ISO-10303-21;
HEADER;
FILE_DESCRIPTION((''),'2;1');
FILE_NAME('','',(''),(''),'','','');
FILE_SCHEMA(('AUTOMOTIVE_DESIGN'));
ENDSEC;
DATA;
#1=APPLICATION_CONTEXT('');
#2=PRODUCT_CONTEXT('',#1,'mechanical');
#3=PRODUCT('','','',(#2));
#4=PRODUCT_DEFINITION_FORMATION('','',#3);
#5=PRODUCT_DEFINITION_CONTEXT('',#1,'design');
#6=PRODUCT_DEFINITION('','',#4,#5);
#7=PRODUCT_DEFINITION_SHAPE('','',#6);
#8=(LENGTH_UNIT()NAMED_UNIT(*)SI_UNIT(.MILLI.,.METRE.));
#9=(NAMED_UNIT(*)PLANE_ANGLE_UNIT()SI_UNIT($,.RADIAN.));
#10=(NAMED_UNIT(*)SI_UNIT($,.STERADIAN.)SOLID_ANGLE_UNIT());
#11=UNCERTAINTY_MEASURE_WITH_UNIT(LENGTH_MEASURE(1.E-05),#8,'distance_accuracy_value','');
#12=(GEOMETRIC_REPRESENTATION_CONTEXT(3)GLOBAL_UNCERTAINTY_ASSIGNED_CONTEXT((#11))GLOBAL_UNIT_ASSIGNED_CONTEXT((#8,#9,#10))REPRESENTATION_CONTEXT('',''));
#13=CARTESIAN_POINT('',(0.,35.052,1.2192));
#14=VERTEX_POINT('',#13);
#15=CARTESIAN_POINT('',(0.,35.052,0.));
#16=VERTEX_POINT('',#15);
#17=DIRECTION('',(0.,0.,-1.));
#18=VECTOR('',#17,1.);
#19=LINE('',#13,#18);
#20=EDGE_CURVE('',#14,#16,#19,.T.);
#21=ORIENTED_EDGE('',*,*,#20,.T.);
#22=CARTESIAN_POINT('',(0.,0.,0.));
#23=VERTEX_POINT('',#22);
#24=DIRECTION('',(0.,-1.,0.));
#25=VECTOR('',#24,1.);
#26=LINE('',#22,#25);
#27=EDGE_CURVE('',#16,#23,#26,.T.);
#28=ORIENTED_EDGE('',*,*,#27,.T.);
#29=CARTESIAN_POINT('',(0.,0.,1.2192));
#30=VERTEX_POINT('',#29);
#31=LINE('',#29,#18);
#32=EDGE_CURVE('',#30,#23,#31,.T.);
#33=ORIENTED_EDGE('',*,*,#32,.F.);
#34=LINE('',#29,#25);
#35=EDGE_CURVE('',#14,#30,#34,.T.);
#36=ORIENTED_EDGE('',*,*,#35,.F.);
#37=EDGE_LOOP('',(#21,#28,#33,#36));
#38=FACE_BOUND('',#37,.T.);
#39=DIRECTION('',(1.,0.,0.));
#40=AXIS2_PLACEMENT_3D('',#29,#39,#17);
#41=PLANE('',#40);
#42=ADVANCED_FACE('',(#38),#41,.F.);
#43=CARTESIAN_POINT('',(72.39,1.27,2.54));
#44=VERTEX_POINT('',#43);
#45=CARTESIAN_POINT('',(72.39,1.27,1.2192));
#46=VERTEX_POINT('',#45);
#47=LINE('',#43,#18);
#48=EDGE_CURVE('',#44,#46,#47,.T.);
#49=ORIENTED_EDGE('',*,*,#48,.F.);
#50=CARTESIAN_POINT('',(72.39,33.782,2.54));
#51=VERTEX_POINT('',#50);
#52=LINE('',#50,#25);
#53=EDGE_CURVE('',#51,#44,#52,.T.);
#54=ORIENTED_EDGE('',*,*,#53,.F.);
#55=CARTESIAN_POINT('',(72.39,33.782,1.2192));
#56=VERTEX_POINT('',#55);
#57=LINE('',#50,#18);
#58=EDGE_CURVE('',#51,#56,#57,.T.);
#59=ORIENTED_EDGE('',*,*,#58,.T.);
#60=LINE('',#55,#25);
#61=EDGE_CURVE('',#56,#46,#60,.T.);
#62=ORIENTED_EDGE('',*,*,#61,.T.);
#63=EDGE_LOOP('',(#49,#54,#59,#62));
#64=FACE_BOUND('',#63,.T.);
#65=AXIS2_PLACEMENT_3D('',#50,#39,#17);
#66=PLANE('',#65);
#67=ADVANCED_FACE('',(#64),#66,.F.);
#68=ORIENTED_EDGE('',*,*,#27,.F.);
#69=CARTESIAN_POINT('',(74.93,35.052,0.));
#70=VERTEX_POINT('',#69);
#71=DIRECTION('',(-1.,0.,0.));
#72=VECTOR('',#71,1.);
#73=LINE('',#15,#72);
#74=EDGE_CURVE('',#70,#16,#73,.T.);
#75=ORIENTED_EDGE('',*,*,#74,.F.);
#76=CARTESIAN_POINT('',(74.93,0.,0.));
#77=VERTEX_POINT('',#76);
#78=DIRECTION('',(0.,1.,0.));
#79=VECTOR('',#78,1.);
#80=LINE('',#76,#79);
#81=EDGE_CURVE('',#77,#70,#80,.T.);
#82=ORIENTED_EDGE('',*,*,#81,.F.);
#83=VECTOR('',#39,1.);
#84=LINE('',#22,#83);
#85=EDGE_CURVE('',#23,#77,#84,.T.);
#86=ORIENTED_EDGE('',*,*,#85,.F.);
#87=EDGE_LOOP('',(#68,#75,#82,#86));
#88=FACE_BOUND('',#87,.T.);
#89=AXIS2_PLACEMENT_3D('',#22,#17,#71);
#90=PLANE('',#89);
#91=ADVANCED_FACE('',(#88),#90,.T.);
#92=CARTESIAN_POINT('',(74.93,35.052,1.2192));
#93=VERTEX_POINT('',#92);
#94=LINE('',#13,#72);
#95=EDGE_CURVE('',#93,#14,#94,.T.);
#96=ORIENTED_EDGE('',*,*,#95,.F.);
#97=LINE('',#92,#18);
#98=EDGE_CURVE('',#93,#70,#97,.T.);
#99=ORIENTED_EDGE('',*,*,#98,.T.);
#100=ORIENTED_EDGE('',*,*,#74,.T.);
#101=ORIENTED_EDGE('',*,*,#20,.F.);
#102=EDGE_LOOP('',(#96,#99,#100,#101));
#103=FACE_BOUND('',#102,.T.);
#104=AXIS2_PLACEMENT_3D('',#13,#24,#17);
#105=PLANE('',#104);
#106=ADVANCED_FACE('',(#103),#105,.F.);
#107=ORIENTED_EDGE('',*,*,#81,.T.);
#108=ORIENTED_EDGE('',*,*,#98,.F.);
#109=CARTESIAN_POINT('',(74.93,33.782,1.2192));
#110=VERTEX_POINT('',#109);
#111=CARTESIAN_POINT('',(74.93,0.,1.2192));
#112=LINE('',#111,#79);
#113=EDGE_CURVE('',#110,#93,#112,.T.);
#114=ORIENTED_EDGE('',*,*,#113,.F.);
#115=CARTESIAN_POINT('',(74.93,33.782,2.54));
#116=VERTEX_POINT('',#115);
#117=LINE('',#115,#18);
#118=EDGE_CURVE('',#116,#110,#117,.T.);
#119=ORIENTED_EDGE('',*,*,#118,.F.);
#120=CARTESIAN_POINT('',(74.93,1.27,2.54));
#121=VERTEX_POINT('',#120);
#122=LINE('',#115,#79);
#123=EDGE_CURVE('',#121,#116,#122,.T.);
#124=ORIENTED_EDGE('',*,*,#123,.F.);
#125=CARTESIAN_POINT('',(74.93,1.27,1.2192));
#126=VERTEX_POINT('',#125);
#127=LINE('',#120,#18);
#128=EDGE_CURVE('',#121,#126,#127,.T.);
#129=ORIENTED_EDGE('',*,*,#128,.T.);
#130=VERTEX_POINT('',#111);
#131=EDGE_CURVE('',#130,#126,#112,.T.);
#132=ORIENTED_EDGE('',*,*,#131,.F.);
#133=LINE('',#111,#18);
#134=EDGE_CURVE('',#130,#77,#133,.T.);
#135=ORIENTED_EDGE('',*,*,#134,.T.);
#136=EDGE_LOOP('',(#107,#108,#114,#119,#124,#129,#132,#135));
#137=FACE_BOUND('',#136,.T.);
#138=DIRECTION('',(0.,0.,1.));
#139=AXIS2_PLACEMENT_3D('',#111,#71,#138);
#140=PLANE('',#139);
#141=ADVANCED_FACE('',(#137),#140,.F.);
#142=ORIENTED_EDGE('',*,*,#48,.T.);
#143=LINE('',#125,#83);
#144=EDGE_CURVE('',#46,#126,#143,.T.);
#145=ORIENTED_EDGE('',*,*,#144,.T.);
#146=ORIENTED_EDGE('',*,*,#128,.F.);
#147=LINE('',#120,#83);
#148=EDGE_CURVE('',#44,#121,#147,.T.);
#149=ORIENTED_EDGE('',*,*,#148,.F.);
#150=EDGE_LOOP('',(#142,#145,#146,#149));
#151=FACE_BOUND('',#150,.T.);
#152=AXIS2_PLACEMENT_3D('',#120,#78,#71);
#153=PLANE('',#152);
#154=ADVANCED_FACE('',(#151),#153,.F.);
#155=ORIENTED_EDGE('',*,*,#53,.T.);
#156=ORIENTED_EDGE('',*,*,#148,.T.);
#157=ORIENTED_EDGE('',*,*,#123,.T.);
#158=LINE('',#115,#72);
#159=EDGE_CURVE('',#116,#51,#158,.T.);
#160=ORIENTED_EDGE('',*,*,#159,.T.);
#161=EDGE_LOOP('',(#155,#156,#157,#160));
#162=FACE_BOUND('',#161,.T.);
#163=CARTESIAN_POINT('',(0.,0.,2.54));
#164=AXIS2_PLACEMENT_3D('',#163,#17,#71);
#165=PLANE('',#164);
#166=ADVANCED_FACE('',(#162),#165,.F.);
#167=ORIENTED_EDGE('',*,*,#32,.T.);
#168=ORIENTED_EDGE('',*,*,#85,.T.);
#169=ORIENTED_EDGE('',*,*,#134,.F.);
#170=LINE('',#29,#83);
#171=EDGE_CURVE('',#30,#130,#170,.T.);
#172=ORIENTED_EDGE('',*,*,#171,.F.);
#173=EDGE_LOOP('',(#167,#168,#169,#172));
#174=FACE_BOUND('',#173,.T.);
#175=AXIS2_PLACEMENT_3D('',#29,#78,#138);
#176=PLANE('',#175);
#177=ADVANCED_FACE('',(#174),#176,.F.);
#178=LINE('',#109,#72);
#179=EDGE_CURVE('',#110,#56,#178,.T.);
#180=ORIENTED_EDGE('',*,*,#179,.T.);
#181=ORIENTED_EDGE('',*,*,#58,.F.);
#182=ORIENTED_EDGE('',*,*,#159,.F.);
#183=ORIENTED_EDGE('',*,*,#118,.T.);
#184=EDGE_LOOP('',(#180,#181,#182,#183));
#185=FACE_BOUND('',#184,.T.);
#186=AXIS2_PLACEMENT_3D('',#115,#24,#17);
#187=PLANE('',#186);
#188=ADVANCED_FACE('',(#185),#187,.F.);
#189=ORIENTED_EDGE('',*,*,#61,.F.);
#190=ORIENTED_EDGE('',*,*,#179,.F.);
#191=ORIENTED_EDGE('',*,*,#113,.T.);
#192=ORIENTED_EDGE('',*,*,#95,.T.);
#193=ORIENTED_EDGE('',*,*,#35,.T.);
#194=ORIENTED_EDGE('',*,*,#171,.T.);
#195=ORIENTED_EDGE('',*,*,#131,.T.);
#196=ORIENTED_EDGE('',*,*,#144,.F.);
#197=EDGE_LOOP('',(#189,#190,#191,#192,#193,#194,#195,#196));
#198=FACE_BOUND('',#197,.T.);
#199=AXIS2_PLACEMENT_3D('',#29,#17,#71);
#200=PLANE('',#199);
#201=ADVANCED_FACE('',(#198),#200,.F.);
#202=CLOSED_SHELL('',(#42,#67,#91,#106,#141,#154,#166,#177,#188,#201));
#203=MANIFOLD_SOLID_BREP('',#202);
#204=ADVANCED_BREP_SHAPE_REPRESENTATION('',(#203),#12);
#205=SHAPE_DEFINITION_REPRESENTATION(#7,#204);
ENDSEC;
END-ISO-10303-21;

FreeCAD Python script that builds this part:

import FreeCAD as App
import Part
import Sketcher
from FreeCAD import Vector
Q = App.Units.Quantity

doc = App.newDocument("Part")
body = doc.addObject("PartDesign::Body", "Body")

sketch1 = body.newObject("Sketcher::SketchObject", "Sketch")
sketch1.AttachmentSupport = (doc.getObject("XY_Plane"), [""])
sketch1.MapMode = "FlatFace"
sketch1.addGeometry([
    Part.LineSegment(Vector(0, 35.052, 0), Vector(0, 0, 0)),
    Part.LineSegment(Vector(0, 0, 0), Vector(74.93, 0, 0)),
    Part.LineSegment(Vector(74.93, 0, 0), Vector(74.93, 35.052, 0)),
    Part.LineSegment(Vector(74.93, 35.052, 0), Vector(0, 35.052, 0)),
], False)
sketch1.addConstraint([
    Sketcher.Constraint("Coincident", 0, 2, 1, 1),
    Sketcher.Constraint("Coincident", 1, 2, 2, 1),
    Sketcher.Constraint("Coincident", 2, 2, 3, 1),
    Sketcher.Constraint("Coincident", 3, 2, 0, 1),
    Sketcher.Constraint("Vertical", 0),
    Sketcher.Constraint("Horizontal", 1),
    Sketcher.Constraint("Vertical", 2),
    Sketcher.Constraint("Horizontal", 3),
    Sketcher.Constraint("Coincident", 0, 2, -1, 1),
    Sketcher.Constraint("DistanceX", 1, 1, 1, 2, Q("2.95 in")),
    Sketcher.Constraint("DistanceY", 0, 2, 0, 1, Q("1.38 in")),
])
pad1 = body.newObject("PartDesign::Pad", "Pad")
pad1.Profile = sketch1
pad1.Length = Q("0.048 in")

sketch2 = body.newObject("Sketcher::SketchObject", "Sketch001")
sketch2.AttachmentSupport = (doc.getObject("XY_Plane"), [""])
sketch2.MapMode = "FlatFace"
sketch2.AttachmentOffset = App.Placement(Vector(0, 0, 0.048 * 25.4), App.Rotation())
sketch2.addGeometry([
    Part.LineSegment(Vector(72.39, 33.782, 0), Vector(72.39, 1.27, 0)),
    Part.LineSegment(Vector(72.39, 1.27, 0), Vector(74.93, 1.27, 0)),
    Part.LineSegment(Vector(74.93, 1.27, 0), Vector(74.93, 33.782, 0)),
    Part.LineSegment(Vector(74.93, 33.782, 0), Vector(72.39, 33.782, 0)),
], False)
sketch2.addConstraint([
    Sketcher.Constraint("Coincident", 0, 2, 1, 1),
    Sketcher.Constraint("Coincident", 1, 2, 2, 1),
    Sketcher.Constraint("Coincident", 2, 2, 3, 1),
    Sketcher.Constraint("Coincident", 3, 2, 0, 1),
    Sketcher.Constraint("Vertical", 0),
    Sketcher.Constraint("Horizontal", 1),
    Sketcher.Constraint("Vertical", 2),
    Sketcher.Constraint("Horizontal", 3),
    Sketcher.Constraint("DistanceX", 1, 1, 1, 2, Q("0.1 in")),
    Sketcher.Constraint("DistanceY", 0, 2, 0, 1, Q("1.28 in")),
    Sketcher.Constraint("DistanceX", -1, 1, 0, 2, Q("2.85 in")),
    Sketcher.Constraint("DistanceY", -1, 1, 0, 2, Q("0.05 in")),
])
pad2 = body.newObject("PartDesign::Pad", "Pad001")
pad2.Profile = sketch2
pad2.Length = Q("0.052 in")

doc.recompute()
